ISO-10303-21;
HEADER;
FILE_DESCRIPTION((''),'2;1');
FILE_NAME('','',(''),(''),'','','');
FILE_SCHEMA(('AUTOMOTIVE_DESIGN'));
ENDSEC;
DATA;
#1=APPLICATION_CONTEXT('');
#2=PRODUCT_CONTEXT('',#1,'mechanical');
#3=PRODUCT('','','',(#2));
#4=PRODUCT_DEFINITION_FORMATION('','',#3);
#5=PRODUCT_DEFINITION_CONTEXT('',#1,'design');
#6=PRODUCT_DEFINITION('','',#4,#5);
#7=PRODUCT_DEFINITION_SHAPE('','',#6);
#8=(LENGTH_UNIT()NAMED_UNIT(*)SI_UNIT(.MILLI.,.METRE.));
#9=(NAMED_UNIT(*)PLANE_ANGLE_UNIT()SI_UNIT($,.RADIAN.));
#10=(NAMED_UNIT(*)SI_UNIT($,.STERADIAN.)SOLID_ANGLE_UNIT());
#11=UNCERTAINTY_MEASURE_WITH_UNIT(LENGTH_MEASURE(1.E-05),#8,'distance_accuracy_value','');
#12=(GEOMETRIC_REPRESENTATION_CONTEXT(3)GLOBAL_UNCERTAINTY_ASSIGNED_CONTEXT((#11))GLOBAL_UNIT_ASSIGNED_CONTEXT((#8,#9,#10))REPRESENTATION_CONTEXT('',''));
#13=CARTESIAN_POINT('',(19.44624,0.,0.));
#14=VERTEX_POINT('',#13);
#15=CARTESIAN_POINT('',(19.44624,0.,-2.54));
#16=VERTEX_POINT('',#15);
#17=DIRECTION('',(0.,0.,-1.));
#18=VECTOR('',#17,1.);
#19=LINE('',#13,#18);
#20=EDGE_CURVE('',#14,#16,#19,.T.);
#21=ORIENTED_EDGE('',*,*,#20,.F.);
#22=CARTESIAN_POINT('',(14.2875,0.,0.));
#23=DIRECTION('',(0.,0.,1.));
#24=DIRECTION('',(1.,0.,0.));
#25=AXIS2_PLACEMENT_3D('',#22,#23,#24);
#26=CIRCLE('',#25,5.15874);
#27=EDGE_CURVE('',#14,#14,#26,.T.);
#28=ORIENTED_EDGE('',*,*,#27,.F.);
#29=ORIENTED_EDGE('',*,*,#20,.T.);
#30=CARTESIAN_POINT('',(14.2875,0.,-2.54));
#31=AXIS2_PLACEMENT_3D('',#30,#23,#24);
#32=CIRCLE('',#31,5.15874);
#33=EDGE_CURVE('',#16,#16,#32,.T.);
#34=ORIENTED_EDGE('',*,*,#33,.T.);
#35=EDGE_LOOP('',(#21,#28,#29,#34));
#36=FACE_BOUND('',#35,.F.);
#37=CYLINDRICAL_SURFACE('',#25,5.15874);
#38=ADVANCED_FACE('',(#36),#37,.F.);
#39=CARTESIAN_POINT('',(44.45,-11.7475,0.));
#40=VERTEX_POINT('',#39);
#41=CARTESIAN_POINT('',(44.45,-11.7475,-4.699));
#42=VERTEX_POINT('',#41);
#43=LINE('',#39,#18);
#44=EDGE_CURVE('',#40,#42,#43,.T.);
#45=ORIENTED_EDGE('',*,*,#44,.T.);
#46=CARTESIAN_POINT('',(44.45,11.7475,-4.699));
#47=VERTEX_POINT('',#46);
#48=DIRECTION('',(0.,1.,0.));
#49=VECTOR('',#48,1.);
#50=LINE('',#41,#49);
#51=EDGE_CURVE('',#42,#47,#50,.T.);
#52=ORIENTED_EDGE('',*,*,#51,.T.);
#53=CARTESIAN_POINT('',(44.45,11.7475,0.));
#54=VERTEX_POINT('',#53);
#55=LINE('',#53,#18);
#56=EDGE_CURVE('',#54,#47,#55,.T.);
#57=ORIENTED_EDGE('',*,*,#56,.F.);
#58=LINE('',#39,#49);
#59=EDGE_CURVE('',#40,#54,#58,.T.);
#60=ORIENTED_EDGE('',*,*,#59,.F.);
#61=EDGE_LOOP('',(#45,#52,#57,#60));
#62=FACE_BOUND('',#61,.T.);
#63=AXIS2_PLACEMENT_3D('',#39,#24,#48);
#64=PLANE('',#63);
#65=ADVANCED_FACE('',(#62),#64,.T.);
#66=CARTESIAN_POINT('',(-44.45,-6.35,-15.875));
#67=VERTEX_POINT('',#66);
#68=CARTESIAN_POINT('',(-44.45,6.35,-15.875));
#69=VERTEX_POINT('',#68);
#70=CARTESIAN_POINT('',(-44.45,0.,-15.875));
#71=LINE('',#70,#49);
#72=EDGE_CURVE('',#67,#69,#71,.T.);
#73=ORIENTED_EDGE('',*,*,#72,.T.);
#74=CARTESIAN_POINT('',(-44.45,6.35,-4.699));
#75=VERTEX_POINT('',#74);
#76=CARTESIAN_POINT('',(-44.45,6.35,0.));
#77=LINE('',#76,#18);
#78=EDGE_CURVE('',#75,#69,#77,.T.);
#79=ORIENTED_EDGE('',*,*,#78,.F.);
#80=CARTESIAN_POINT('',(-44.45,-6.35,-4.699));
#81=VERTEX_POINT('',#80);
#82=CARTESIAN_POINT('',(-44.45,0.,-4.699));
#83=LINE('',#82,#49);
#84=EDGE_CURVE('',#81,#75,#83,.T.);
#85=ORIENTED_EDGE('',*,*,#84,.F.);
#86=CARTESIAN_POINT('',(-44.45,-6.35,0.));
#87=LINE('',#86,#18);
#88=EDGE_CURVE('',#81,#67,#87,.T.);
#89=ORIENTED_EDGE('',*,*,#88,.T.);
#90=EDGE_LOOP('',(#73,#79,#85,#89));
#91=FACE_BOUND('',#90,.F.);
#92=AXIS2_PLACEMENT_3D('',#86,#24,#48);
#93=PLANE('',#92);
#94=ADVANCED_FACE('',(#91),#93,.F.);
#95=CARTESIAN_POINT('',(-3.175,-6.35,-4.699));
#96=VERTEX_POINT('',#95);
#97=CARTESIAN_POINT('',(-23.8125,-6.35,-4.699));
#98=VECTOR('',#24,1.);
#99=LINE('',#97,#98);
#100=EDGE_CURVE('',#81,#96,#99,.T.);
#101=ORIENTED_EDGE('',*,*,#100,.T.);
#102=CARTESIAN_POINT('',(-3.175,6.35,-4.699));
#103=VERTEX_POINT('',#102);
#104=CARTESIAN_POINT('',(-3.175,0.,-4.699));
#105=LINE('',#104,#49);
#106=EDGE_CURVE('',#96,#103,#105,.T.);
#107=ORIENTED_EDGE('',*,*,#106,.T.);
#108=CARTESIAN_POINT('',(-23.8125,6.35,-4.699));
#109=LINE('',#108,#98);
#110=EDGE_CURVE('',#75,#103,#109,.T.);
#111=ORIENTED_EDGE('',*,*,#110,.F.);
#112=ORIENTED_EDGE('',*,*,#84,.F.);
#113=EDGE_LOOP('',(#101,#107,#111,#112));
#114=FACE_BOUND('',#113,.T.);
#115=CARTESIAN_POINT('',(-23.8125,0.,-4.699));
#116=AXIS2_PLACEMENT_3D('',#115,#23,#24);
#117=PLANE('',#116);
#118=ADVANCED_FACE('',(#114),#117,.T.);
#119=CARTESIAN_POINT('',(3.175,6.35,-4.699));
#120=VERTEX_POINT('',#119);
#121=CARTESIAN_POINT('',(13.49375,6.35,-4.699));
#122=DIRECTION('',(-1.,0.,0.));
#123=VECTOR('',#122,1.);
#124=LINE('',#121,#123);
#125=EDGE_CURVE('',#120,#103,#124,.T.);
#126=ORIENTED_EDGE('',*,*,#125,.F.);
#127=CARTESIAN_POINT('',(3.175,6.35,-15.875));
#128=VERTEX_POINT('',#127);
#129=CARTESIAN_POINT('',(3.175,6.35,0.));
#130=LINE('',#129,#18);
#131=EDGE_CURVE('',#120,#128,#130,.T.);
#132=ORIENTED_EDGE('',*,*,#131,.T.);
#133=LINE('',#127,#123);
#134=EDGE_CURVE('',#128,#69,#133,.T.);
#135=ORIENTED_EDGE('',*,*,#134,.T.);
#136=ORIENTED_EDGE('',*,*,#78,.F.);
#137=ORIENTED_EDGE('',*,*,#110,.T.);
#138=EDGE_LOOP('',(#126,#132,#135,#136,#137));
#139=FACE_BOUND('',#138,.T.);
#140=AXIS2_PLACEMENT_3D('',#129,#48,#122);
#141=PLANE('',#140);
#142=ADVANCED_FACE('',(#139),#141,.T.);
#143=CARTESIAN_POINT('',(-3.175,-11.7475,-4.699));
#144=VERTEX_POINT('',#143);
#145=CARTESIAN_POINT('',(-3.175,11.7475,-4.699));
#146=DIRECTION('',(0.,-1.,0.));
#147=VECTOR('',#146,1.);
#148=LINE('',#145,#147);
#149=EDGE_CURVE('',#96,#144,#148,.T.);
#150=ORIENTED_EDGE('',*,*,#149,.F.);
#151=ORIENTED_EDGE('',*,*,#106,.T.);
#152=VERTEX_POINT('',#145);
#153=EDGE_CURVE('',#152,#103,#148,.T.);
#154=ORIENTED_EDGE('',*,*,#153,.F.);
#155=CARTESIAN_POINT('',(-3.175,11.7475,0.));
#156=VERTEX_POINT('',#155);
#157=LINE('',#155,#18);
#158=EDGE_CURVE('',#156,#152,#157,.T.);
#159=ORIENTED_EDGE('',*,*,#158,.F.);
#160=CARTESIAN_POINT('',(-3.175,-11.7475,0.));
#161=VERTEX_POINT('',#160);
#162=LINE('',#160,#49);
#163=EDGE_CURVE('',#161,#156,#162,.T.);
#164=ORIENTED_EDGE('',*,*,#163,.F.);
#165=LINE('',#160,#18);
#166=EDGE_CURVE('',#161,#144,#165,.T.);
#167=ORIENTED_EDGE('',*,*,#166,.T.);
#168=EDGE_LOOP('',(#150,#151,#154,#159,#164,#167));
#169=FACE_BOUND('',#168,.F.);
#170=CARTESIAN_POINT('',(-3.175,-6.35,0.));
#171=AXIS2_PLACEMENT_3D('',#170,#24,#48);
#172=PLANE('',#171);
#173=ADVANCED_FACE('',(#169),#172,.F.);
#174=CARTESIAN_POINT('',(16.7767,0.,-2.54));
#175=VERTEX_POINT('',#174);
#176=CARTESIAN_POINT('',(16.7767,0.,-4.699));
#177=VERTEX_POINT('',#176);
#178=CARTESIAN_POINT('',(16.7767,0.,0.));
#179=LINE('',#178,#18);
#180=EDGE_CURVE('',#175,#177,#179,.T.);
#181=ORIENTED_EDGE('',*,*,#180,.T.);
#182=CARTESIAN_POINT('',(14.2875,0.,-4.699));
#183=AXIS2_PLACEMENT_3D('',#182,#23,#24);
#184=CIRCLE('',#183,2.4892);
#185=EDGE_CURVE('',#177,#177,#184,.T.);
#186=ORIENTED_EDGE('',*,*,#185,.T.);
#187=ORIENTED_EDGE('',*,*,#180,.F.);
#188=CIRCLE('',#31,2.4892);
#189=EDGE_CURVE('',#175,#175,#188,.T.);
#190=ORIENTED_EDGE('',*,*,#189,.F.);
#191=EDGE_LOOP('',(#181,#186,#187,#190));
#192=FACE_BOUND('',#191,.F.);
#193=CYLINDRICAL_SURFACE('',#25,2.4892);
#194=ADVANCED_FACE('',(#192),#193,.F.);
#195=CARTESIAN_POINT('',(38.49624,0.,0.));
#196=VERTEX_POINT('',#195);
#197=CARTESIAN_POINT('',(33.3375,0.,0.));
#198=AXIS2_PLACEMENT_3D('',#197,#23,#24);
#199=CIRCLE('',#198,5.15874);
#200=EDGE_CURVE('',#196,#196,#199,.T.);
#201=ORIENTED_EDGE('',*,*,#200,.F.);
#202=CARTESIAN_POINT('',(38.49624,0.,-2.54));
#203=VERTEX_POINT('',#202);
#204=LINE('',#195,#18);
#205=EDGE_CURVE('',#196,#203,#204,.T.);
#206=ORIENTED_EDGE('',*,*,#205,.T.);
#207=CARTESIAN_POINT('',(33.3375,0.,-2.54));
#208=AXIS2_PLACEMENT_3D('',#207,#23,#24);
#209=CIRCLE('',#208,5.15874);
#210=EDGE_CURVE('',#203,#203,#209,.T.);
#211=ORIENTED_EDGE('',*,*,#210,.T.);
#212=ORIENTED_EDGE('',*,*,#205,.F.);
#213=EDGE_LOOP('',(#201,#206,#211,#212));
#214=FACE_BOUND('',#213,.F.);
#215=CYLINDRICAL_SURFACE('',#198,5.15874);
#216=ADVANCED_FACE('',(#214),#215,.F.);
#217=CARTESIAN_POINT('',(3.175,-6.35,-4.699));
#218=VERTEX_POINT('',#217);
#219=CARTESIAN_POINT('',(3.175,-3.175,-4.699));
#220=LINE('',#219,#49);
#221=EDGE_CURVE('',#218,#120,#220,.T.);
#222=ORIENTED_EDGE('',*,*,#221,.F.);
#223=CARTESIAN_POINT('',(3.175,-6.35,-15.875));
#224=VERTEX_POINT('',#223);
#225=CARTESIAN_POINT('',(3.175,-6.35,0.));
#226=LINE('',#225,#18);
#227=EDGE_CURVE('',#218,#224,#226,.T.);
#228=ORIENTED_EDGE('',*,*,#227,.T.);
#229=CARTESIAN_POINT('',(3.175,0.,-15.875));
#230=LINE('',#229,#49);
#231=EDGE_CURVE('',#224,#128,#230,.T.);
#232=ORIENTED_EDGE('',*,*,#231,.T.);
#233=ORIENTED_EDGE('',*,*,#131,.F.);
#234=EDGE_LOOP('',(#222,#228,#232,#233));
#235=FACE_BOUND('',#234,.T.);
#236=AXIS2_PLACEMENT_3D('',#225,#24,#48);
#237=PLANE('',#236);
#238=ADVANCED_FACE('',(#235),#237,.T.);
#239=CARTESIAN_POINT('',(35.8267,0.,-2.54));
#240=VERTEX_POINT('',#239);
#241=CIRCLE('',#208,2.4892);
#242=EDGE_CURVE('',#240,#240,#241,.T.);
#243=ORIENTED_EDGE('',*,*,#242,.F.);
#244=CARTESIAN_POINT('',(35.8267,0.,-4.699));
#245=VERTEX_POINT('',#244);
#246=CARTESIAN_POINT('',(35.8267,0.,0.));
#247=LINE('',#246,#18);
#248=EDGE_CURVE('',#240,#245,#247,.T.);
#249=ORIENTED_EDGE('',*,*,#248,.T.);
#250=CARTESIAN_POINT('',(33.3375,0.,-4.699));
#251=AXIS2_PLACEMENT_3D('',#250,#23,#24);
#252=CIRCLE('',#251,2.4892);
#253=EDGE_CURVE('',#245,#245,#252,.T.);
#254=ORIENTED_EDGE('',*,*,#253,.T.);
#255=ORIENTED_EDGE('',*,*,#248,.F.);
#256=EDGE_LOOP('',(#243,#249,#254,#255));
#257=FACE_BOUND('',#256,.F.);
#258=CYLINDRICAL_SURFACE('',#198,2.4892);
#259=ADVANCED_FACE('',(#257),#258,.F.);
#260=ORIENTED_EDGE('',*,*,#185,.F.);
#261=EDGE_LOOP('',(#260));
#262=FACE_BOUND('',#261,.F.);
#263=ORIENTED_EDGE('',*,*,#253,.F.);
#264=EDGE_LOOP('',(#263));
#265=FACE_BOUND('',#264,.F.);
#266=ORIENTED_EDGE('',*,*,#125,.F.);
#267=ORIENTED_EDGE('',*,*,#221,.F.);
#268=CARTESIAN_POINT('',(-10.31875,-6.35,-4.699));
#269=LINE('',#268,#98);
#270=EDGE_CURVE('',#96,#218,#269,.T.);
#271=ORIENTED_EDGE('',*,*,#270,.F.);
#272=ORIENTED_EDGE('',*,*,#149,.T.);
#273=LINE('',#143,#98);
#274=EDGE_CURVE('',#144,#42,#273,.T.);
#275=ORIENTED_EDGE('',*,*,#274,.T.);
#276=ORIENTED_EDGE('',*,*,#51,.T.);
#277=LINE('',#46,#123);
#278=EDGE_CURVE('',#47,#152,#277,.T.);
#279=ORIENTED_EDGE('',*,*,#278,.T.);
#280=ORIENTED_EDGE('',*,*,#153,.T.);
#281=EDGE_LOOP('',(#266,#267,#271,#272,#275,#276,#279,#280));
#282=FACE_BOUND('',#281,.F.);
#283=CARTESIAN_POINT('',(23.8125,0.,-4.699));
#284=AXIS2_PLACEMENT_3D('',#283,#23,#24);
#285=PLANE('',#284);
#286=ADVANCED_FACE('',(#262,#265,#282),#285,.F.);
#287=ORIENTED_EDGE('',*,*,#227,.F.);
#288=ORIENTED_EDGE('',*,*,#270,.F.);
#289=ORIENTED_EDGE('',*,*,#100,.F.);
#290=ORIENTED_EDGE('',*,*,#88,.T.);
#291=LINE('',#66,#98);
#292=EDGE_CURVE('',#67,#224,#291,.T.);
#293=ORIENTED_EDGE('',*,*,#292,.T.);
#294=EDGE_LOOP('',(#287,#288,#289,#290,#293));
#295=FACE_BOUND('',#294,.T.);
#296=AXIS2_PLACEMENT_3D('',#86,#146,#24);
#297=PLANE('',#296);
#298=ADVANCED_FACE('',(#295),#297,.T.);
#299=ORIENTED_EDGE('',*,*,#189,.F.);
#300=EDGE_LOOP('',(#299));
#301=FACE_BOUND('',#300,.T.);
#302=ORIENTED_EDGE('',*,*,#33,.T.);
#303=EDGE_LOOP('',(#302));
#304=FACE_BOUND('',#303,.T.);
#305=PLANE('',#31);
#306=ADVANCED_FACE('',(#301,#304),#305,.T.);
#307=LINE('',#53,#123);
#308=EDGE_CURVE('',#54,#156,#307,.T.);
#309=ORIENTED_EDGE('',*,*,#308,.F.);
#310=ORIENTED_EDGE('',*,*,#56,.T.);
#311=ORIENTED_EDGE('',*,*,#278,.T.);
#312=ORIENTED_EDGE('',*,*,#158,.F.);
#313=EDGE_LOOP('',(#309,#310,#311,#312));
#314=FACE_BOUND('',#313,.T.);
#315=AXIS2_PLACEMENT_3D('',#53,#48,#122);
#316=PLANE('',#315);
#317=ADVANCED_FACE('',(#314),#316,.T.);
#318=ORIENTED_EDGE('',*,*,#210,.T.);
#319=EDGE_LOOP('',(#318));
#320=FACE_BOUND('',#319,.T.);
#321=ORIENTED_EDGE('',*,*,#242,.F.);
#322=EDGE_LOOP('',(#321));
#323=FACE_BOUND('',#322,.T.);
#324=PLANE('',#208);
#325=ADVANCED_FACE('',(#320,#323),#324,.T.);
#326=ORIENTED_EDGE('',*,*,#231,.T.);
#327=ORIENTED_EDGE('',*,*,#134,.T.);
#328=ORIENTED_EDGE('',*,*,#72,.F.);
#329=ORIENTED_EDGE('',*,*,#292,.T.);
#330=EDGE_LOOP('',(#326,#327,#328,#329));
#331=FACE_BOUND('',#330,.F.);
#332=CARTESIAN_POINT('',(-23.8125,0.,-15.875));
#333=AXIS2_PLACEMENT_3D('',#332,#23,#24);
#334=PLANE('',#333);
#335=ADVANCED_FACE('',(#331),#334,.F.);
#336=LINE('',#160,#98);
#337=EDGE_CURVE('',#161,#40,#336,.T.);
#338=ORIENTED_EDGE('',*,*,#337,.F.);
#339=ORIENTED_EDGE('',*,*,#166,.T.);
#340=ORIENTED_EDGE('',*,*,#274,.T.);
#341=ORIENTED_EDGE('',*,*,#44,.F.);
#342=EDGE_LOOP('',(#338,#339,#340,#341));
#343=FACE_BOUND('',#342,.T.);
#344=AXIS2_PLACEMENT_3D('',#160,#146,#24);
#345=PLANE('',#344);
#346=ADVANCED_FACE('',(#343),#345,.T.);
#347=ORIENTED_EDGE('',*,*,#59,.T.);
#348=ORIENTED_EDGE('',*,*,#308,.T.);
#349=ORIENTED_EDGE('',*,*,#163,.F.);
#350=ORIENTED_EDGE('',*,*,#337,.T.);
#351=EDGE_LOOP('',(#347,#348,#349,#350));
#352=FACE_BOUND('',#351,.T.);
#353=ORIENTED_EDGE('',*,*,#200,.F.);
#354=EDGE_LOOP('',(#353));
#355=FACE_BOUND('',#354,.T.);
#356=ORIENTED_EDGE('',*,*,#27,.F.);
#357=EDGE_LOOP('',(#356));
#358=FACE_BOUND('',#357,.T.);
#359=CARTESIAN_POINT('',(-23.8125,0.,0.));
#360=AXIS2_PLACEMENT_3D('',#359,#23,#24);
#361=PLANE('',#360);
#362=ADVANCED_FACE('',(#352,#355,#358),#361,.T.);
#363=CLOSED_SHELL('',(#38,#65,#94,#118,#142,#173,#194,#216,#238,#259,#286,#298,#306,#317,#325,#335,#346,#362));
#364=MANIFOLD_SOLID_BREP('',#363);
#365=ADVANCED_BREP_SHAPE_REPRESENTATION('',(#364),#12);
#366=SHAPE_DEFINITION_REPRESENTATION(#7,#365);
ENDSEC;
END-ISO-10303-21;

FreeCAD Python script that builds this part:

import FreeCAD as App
import Part
import Sketcher

V = App.Vector
Q = App.Units.Quantity


def add_polygon(sketch, points):
    """Adds a closed chain of lines whose ends are joined by coincident constraints."""
    first, n = sketch.GeometryCount, len(points)
    for a, b in zip(points, points[1:] + points[:1]):
        sketch.addGeometry(Part.LineSegment(App.Vector(*a, 0), App.Vector(*b, 0)), False)
    for i in range(n):
        sketch.addConstraint(Sketcher.Constraint("Coincident", first + i, 2, first + (i + 1) % n, 1))

doc = App.newDocument("Part")
body = doc.addObject("PartDesign::Body", "Body")

sketch1 = body.newObject("Sketcher::SketchObject", "Sketch")
sketch1.AttachmentSupport = (doc.getObject("XY_Plane"), [""])
sketch1.MapMode = "FlatFace"
add_polygon(sketch1, [(44.5, 11.7), (-3.2, 11.7), (-3.2, -11.7), (44.5, -11.7)])
sketch1.addGeometry(Part.Circle(V(14.3, 0, 0), V(0, 0, 1), 2.5), False)
sketch1.addGeometry(Part.Circle(V(33.3, 0, 0), V(0, 0, 1), 2.5), False)
sketch1.addConstraint([
    Sketcher.Constraint("Horizontal", 0),
    Sketcher.Constraint("Vertical", 1),
    Sketcher.Constraint("Horizontal", 2),
    Sketcher.Constraint("Vertical", 3),
    Sketcher.Constraint("Equal", 4, 5),
    Sketcher.Constraint("PointOnObject", 4, 3, -1),
    Sketcher.Constraint("PointOnObject", 5, 3, -1),
    Sketcher.Constraint("Diameter", 4, Q("0.196 in")),
    Sketcher.Constraint("DistanceX", 0, 2, 0, 1, Q("1.875 in")),
    Sketcher.Constraint("DistanceY", 1, 2, 1, 1, Q("0.925 in")),
    Sketcher.Constraint("DistanceX", -1, 1, 2, 2, Q("1.75 in")),
    Sketcher.Constraint("DistanceX", 4, 3, 5, 3, Q("0.75 in")),
    Sketcher.Constraint("DistanceX", -1, 1, 4, 3, Q("0.5625 in")),
    Sketcher.Constraint("DistanceY", -1, 1, 0, 2, Q("0.4625 in")),
])
pad1 = body.newObject("PartDesign::Pad", "Pad")
pad1.Profile = sketch1
pad1.Length = Q("0.185 in")
pad1.Reversed = True

sketch2 = body.newObject("Sketcher::SketchObject", "Sketch001")
sketch2.AttachmentSupport = (doc.getObject("XY_Plane"), [""])
sketch2.MapMode = "FlatFace"
add_polygon(sketch2, [(-44, 6), (-44, -6), (3, -6), (3, 6)])
sketch2.addConstraint([
    Sketcher.Constraint("Vertical", 0),
    Sketcher.Constraint("Horizontal", 1),
    Sketcher.Constraint("Vertical", 2),
    Sketcher.Constraint("Horizontal", 3),
    Sketcher.Constraint("DistanceY", 0, 2, 0, 1, Q("0.5 in")),
    Sketcher.Constraint("DistanceX", 1, 1, 1, 2, Q("1.875 in")),
    Sketcher.Constraint("DistanceX", 0, 2, -1, 1, Q("1.75 in")),
    Sketcher.Constraint("DistanceY", 0, 2, -1, 1, Q("0.25 in")),
])
pad2 = body.newObject("PartDesign::Pad", "Pad001")
pad2.Profile = sketch2
pad2.Length = Q("0.625 in")
pad2.Reversed = True

sketch3 = body.newObject("Sketcher::SketchObject", "Sketch002")
sketch3.AttachmentSupport = (doc.getObject("XY_Plane"), [""])
sketch3.MapMode = "FlatFace"
sketch3.addGeometry([
    Part.Circle(V(14.3, 0, 0), V(0, 0, 1), 5.2),
    Part.Circle(V(14.3, 0, 0), V(0, 0, 1), 2.5),
    Part.Circle(V(33.3, 0, 0), V(0, 0, 1), 5.2),
    Part.Circle(V(33.3, 0, 0), V(0, 0, 1), 2.5),
], False)
sketch3.addConstraint([
    Sketcher.Constraint("Coincident", 1, 3, 0, 3),
    Sketcher.Constraint("Coincident", 3, 3, 2, 3),
    Sketcher.Constraint("Equal", 0, 2),
    Sketcher.Constraint("Equal", 1, 3),
    Sketcher.Constraint("PointOnObject", 0, 3, -1),
    Sketcher.Constraint("PointOnObject", 2, 3, -1),
    Sketcher.Constraint("Diameter", 1, Q("0.196 in")),
    Sketcher.Constraint("Diameter", 0, Q("0.4062 in")),
    Sketcher.Constraint("DistanceX", 0, 3, 2, 3, Q("0.75 in")),
    Sketcher.Constraint("DistanceX", -1, 1, 0, 3, Q("0.5625 in")),
])
pocket1 = body.newObject("PartDesign::Pocket", "Pocket")
pocket1.Profile = sketch3
pocket1.Length = Q("0.1 in")

sketch4 = body.newObject("Sketcher::SketchObject", "Sketch003")
sketch4.AttachmentSupport = (doc.getObject("XY_Plane"), [""])
sketch4.MapMode = "FlatFace"
add_polygon(sketch4, [(-44, 6), (-44, -6), (-3, -6), (-3, 6)])
sketch4.addConstraint([
    Sketcher.Constraint("Vertical", 0),
    Sketcher.Constraint("Horizontal", 1),
    Sketcher.Constraint("Vertical", 2),
    Sketcher.Constraint("Horizontal", 3),
    Sketcher.Constraint("DistanceY", 0, 2, 0, 1, Q("0.5 in")),
    Sketcher.Constraint("DistanceX", 1, 1, 1, 2, Q("1.625 in")),
    Sketcher.Constraint("DistanceX", 0, 2, -1, 1, Q("1.75 in")),
    Sketcher.Constraint("DistanceY", 0, 2, -1, 1, Q("0.25 in")),
])
pocket2 = body.newObject("PartDesign::Pocket", "Pocket001")
pocket2.Profile = sketch4
pocket2.Length = Q("0.185 in")

doc.recompute()
